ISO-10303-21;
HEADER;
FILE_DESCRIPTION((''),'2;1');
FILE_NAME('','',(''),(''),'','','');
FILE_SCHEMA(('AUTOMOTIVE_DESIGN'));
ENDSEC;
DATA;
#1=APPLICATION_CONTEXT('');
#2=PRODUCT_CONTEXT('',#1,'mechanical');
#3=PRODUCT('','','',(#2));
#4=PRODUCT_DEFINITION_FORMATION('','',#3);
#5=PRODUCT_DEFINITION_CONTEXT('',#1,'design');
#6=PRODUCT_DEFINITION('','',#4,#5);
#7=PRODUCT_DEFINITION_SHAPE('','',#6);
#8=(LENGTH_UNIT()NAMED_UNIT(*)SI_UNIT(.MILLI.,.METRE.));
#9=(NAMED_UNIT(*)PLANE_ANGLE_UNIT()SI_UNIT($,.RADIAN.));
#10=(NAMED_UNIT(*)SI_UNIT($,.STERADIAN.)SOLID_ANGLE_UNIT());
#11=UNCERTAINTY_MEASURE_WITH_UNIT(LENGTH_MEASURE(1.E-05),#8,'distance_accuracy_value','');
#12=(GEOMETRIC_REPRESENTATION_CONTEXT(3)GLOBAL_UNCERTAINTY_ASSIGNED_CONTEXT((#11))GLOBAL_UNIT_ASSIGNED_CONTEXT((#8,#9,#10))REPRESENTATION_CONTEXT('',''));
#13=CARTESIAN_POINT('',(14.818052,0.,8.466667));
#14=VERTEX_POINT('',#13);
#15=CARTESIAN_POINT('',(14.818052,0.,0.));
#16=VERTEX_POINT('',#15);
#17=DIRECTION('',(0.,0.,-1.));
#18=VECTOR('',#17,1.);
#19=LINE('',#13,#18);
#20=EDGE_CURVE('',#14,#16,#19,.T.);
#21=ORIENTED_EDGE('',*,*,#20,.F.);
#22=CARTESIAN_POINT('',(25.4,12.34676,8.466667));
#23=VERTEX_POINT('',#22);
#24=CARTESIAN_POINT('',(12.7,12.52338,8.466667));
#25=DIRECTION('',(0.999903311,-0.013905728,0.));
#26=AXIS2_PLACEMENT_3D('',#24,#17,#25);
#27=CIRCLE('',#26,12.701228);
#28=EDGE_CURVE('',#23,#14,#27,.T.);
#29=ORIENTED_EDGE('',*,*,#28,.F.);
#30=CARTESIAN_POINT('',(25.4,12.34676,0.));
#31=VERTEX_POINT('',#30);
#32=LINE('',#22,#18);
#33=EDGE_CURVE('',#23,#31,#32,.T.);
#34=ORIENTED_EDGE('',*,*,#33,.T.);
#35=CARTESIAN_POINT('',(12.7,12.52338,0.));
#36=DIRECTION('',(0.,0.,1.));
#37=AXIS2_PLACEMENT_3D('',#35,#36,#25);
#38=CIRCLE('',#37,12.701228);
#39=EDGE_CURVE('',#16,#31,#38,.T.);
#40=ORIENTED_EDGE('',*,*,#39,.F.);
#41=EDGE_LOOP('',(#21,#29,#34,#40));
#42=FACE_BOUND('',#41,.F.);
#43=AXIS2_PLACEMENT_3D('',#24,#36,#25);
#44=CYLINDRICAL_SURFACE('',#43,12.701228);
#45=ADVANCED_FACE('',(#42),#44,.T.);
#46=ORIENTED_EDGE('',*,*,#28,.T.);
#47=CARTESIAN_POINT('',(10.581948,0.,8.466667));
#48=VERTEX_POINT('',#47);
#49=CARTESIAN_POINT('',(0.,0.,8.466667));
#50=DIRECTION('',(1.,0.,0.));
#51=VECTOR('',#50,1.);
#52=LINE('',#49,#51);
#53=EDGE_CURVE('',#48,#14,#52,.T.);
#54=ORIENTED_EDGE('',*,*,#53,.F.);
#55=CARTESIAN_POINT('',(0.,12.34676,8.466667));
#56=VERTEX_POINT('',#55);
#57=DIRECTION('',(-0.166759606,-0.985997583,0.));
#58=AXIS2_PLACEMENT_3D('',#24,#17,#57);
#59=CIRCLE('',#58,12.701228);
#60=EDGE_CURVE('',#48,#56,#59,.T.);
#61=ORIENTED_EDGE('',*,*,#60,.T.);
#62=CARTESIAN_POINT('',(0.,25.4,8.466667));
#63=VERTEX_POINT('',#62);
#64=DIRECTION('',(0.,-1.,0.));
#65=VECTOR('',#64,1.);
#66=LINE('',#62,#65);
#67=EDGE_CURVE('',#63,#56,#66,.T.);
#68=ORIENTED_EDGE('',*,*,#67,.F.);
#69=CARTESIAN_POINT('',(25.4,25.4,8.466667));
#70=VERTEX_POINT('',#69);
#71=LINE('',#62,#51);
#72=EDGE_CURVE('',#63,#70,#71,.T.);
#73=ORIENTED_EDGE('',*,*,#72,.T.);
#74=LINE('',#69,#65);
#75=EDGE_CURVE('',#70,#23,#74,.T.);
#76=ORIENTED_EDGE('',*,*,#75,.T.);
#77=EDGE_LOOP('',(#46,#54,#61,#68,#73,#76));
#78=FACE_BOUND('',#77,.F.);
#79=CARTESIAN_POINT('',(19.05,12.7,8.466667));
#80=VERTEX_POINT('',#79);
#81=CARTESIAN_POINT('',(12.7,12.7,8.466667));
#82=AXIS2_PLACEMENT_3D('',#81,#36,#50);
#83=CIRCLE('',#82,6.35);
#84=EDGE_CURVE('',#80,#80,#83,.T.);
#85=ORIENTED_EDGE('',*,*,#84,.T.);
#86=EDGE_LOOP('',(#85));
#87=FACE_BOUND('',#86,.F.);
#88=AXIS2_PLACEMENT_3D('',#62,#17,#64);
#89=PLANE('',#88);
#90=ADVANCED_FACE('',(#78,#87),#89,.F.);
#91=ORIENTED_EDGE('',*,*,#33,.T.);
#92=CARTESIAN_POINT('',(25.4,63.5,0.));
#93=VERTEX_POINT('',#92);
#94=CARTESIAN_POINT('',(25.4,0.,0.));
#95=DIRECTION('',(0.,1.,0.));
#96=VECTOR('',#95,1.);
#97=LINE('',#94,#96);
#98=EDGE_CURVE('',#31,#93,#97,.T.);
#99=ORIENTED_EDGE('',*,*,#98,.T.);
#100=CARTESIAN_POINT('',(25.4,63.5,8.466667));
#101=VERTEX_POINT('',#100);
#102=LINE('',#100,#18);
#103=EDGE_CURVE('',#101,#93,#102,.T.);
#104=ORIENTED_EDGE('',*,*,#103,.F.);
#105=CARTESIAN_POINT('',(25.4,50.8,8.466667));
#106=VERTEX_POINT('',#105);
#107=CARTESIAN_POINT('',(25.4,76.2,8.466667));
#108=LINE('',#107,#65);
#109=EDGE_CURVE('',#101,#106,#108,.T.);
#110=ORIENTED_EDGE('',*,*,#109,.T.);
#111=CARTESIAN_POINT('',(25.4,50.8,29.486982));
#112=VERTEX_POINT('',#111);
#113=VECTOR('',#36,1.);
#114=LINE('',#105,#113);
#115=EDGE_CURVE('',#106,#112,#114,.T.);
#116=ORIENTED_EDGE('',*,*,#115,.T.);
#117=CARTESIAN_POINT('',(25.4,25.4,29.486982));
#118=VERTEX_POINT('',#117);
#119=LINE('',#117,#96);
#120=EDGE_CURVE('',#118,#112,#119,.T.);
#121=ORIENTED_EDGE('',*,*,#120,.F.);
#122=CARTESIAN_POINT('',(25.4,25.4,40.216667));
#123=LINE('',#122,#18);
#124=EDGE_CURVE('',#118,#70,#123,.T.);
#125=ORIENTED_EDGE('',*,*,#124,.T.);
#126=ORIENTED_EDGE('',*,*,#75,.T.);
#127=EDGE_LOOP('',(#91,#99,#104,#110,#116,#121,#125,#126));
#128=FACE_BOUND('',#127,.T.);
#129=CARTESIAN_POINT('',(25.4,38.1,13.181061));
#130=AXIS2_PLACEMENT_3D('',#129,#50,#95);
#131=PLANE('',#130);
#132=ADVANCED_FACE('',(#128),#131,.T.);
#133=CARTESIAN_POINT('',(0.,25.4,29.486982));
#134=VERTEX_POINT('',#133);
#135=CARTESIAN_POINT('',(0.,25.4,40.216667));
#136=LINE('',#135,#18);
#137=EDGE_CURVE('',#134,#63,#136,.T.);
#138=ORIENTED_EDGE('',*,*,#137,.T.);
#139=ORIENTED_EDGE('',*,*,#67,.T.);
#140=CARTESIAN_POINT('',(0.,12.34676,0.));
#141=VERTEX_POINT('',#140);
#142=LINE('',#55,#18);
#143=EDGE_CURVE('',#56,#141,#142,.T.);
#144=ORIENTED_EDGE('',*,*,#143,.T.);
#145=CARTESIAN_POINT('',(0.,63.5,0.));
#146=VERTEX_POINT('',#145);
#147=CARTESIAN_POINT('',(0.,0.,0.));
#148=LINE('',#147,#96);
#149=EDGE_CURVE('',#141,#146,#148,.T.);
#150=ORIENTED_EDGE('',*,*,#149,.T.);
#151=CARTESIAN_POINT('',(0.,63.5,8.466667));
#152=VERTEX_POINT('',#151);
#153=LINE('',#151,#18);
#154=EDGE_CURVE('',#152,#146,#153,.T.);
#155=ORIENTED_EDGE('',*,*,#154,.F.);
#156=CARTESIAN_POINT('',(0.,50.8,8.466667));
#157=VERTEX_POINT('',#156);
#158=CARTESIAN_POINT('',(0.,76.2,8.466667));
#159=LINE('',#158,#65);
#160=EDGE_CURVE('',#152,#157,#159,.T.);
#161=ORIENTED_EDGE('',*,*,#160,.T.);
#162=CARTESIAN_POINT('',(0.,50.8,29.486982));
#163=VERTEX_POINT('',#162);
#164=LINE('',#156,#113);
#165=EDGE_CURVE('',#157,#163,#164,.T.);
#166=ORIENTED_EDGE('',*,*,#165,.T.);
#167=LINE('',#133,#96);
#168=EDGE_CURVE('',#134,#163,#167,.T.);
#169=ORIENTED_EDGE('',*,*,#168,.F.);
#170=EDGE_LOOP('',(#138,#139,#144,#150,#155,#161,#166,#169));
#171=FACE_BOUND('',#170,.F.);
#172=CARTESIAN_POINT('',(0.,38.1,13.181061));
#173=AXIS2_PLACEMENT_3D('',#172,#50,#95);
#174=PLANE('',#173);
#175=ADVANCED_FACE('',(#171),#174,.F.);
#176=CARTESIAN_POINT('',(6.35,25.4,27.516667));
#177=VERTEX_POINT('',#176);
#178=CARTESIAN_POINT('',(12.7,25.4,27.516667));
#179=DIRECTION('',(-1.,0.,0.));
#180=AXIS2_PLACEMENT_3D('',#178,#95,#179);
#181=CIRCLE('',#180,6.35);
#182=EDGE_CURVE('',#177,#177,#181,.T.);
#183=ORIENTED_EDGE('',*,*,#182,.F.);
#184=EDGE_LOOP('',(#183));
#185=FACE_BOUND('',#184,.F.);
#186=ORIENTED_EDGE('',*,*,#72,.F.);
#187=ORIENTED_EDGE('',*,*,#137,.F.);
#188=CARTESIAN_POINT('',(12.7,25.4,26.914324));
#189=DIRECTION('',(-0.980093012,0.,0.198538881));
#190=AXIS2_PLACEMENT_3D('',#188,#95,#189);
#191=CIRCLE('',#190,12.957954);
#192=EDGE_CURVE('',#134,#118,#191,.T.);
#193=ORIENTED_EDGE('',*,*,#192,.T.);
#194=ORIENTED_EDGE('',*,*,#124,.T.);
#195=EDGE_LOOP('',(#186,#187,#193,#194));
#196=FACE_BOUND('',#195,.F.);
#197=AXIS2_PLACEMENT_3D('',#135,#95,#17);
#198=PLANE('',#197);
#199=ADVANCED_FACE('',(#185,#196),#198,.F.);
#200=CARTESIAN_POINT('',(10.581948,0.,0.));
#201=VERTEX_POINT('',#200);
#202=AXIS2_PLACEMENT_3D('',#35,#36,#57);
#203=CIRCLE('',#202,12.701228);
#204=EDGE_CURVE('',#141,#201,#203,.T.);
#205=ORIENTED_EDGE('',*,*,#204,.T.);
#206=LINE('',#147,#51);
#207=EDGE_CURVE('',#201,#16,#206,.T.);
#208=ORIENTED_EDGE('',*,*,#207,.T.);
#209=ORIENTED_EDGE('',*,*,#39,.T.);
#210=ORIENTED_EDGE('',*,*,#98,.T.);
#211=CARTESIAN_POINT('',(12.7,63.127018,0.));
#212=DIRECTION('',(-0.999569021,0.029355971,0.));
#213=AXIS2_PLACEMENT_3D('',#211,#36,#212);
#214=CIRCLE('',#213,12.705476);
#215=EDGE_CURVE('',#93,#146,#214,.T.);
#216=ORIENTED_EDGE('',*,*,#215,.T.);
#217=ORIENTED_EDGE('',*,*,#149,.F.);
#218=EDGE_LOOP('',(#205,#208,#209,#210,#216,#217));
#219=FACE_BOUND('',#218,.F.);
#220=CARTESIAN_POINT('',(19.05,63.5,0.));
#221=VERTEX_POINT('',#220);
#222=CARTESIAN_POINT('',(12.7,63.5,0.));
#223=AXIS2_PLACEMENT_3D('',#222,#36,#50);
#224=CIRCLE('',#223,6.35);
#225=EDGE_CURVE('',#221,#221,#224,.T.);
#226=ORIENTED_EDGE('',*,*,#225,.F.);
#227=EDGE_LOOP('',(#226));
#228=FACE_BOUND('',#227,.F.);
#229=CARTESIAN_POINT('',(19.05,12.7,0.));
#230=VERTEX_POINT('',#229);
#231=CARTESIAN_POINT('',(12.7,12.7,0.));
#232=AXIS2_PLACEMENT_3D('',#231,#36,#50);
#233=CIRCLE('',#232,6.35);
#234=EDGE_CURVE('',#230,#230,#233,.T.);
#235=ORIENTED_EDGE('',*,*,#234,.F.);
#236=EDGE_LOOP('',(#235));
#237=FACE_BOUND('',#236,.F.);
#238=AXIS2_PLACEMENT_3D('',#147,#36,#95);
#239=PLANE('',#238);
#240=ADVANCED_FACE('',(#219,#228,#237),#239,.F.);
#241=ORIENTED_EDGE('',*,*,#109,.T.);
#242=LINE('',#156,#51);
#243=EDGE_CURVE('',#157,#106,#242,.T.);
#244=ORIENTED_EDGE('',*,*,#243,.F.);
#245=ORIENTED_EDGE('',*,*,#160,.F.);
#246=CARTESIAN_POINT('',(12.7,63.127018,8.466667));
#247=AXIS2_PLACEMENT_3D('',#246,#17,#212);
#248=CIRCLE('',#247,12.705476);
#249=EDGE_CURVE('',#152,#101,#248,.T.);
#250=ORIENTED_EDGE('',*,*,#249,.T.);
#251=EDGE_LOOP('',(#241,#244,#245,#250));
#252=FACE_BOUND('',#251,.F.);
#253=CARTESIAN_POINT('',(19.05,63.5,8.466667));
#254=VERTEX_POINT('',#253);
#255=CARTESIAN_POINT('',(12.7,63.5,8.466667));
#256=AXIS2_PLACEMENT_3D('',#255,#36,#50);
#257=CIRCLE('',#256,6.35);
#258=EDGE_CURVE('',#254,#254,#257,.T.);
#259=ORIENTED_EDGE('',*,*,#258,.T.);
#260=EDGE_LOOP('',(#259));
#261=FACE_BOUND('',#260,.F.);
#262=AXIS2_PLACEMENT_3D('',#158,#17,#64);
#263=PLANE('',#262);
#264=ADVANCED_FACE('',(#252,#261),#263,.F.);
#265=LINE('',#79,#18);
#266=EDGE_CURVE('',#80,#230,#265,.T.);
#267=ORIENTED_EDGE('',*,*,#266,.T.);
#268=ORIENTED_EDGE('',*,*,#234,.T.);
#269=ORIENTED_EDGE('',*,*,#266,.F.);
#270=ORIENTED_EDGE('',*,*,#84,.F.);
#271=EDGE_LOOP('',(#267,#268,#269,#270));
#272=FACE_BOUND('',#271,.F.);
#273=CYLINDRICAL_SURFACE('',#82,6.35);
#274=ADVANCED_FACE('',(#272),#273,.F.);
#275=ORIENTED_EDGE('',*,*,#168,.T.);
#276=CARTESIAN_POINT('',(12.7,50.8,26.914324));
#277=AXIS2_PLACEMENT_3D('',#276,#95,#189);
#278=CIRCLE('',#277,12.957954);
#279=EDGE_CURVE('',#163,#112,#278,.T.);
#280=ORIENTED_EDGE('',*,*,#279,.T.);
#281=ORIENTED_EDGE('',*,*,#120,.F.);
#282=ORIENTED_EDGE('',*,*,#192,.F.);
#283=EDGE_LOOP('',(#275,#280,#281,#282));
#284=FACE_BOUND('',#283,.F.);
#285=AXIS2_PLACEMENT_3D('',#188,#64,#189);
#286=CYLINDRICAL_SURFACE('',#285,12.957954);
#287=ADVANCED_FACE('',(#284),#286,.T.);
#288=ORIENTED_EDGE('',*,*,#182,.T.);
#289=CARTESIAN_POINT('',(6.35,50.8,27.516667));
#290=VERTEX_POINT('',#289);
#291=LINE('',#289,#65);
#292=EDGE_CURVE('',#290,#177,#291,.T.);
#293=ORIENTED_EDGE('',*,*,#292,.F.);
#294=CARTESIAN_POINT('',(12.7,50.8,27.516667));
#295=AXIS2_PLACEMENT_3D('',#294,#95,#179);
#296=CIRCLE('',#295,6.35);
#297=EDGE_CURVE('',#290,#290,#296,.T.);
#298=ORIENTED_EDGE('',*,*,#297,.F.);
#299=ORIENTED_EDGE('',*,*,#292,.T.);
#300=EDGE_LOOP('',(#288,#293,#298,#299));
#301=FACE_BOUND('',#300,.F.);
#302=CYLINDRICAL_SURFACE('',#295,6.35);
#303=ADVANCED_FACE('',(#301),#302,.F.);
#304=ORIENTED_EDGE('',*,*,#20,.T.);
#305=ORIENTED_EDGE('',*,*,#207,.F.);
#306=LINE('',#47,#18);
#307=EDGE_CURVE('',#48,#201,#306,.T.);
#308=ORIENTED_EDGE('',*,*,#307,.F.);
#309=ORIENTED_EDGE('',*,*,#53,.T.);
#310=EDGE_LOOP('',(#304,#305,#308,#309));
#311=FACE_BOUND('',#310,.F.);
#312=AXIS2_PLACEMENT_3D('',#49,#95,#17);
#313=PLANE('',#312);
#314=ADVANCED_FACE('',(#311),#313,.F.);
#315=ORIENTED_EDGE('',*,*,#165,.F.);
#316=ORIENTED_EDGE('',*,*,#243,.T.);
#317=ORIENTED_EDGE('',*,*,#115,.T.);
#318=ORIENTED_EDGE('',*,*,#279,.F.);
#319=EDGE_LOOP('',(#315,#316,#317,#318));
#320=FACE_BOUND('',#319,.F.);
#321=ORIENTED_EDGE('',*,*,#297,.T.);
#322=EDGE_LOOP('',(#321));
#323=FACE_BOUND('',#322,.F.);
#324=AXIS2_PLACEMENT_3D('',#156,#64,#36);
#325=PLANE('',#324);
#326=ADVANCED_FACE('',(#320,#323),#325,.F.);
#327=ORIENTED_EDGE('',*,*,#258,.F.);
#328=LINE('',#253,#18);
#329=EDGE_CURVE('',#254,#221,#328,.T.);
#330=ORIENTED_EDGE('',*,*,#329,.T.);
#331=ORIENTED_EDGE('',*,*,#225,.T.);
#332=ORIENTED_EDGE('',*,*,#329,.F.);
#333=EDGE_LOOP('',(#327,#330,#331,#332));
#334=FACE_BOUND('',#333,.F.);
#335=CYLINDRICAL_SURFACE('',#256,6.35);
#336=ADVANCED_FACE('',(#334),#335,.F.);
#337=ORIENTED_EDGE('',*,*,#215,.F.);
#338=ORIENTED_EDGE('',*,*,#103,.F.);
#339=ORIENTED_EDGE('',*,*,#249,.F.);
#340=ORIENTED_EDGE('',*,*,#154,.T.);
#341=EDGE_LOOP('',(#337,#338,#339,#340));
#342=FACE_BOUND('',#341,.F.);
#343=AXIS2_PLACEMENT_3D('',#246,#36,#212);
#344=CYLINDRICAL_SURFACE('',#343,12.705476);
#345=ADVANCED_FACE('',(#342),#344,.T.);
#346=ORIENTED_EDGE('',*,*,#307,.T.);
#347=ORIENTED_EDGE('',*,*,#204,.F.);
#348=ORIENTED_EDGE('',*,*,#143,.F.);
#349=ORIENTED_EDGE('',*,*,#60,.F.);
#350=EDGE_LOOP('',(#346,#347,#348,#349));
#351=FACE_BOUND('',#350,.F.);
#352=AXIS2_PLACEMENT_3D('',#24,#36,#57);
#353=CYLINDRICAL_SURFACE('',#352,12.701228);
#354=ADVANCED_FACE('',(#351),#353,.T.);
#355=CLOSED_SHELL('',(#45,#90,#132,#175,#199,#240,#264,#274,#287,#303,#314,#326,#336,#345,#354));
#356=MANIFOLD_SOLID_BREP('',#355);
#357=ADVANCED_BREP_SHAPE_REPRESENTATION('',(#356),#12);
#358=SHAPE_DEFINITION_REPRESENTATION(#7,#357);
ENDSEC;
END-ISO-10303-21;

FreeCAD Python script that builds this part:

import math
import FreeCAD as App
import Part
import Sketcher
from FreeCAD import Vector
Q = App.Units.Quantity


def add_polygon(sketch, points):
    """Adds a closed chain of lines whose ends are joined by coincident constraints."""
    first, n = sketch.GeometryCount, len(points)
    for a, b in zip(points, points[1:] + points[:1]):
        sketch.addGeometry(Part.LineSegment(App.Vector(*a, 0), App.Vector(*b, 0)), False)
    for i in range(n):
        sketch.addConstraint(Sketcher.Constraint("Coincident", first + i, 2, first + (i + 1) % n, 1))

doc = App.newDocument("Part")
body = doc.addObject("PartDesign::Body", "Body")

# Sketch on YZ plane
sketch1 = body.newObject("Sketcher::SketchObject", "Sketch")
sketch1.AttachmentSupport = (doc.getObject("YZ_Plane"), [""])
sketch1.MapMode = "FlatFace"
add_polygon(sketch1, [(0, 8), (0, 0), (76, 0), (76, 8), (51, 8), (51, 40), (25, 40), (25, 8)])  # lines 0-7
sketch1.addConstraint(Sketcher.Constraint("Vertical", 0))
sketch1.addConstraint(Sketcher.Constraint("Horizontal", 1))
sketch1.addConstraint(Sketcher.Constraint("Vertical", 2))
sketch1.addConstraint(Sketcher.Constraint("Horizontal", 3))
sketch1.addConstraint(Sketcher.Constraint("Vertical", 4))
sketch1.addConstraint(Sketcher.Constraint("Horizontal", 5))
sketch1.addConstraint(Sketcher.Constraint("Vertical", 6))
sketch1.addConstraint(Sketcher.Constraint("Horizontal", 7))
sketch1.addConstraint(Sketcher.Constraint("Coincident", 0, 2, -1, 1))
sketch1.addConstraint(Sketcher.Constraint("Horizontal", 3, 2, 6, 2))
sketch1.addConstraint(Sketcher.Constraint("Equal", 3, 5))
sketch1.addConstraint(Sketcher.Constraint("Equal", 5, 7))
sketch1.addConstraint(Sketcher.Constraint("DistanceX", 1, 1, 1, 2, Q("3 in")))
sketch1.addConstraint(Sketcher.Constraint("DistanceY", 4, 1, 4, 2, Q("1.25 in")))
sketch1.addConstraint(Sketcher.Constraint("DistanceY", 0, 2, 0, 1, 8.466667))
pad1 = body.newObject("PartDesign::Pad", "Pad")
pad1.Profile = sketch1
pad1.Length = Q("1 in")

# Sketch on XZ plane
sketch2 = body.newObject("Sketcher::SketchObject", "Sketch001")
sketch2.AttachmentSupport = (doc.getObject("XZ_Plane"), [""])
sketch2.MapMode = "FlatFace"
sketch2.AttachmentOffset = App.Placement(Vector(0, 0, -2 * 25.4), App.Rotation())
sketch2.addGeometry(Part.Circle(Vector(13, 28, 0), Vector(0, 0, 1), 6), False)
sketch2.addConstraint(Sketcher.Constraint("Diameter", 0, Q("0.5 in")))
sketch2.addConstraint(Sketcher.Constraint("DistanceX", -1, 1, 0, 3, Q("0.5 in")))
sketch2.addConstraint(Sketcher.Constraint("DistanceY", -1, 1, 0, 3, 27.516667))
pocket1 = body.newObject("PartDesign::Pocket", "Pocket")
pocket1.Profile = sketch2
pocket1.Length = Q("1 in")
pocket1.Reversed = True

# Sketch on XY plane
sketch3 = body.newObject("Sketcher::SketchObject", "Sketch002")
sketch3.AttachmentSupport = (doc.getObject("XY_Plane"), [""])
sketch3.MapMode = "FlatFace"
sketch3.AttachmentOffset = App.Placement(Vector(0, 0, 8.466667), App.Rotation())
sketch3.addGeometry(Part.Circle(Vector(13, 64, 0), Vector(0, 0, 1), 6), False)
sketch3.addGeometry(Part.Circle(Vector(13, 13, 0), Vector(0, 0, 1), 6), False)
sketch3.addConstraint(Sketcher.Constraint("Equal", 0, 1))
sketch3.addConstraint(Sketcher.Constraint("Vertical", 0, 3, 1, 3))
sketch3.addConstraint(Sketcher.Constraint("Diameter", 0, Q("0.5 in")))
sketch3.addConstraint(Sketcher.Constraint("DistanceY", 1, 3, 0, 3, Q("2 in")))
sketch3.addConstraint(Sketcher.Constraint("DistanceX", -1, 1, 0, 3, Q("0.5 in")))
sketch3.addConstraint(Sketcher.Constraint("DistanceY", -1, 1, 0, 3, Q("2.5 in")))
pocket2 = body.newObject("PartDesign::Pocket", "Pocket001")
pocket2.Profile = sketch3
pocket2.Length = Q("1 in")

# Sketch on XY plane
sketch4 = body.newObject("Sketcher::SketchObject", "Sketch003")
sketch4.AttachmentSupport = (doc.getObject("XY_Plane"), [""])
sketch4.MapMode = "FlatFace"
sketch4.AttachmentOffset = App.Placement(Vector(0, 0, 8.466667), App.Rotation())
sketch4.addGeometry(Part.ArcOfCircle(Part.Circle(Vector(13, 63, 0), Vector(0, 0, 1), 13), math.radians(2), math.radians(178)), False)
sketch4.addGeometry(Part.LineSegment(Vector(25, 64, 0), Vector(25, 76, 0)), False)
sketch4.addGeometry(Part.LineSegment(Vector(25, 76, 0), Vector(0, 76, 0)), False)
sketch4.addGeometry(Part.LineSegment(Vector(0, 76, 0), Vector(0, 64, 0)), False)
sketch4.addConstraint(Sketcher.Constraint("Coincident", 0, 1, 1, 1))
sketch4.addConstraint(Sketcher.Constraint("Coincident", 1, 2, 2, 1))
sketch4.addConstraint(Sketcher.Constraint("Coincident", 2, 2, 3, 1))
sketch4.addConstraint(Sketcher.Constraint("Coincident", 3, 2, 0, 2))
sketch4.addConstraint(Sketcher.Constraint("Vertical", 1))
sketch4.addConstraint(Sketcher.Constraint("Horizontal", 2))
sketch4.addConstraint(Sketcher.Constraint("Vertical", 3))
sketch4.addConstraint(Sketcher.Constraint("PointOnObject", 2, 2, -2))
sketch4.addConstraint(Sketcher.Constraint("Horizontal", 0, 1, 3, 2))
sketch4.addConstraint(Sketcher.Constraint("DistanceX", 2, 2, 2, 1, Q("1 in")))
sketch4.addConstraint(Sketcher.Constraint("DistanceY", 1, 1, 1, 2, Q("0.5 in")))
sketch4.addConstraint(Sketcher.Constraint("DistanceY", -1, 1, 1, 2, Q("3 in")))
sketch4.addConstraint(Sketcher.Constraint("Radius", 0, 12.705476))
pocket3 = body.newObject("PartDesign::Pocket", "Pocket002")
pocket3.Profile = sketch4
pocket3.Length = Q("1 in")

# Sketch on XY plane
sketch5 = body.newObject("Sketcher::SketchObject", "Sketch004")
sketch5.AttachmentSupport = (doc.getObject("XY_Plane"), [""])
sketch5.MapMode = "FlatFace"
sketch5.AttachmentOffset = App.Placement(Vector(0, 0, 8.466667), App.Rotation())
sketch5.addGeometry(Part.ArcOfCircle(Part.Circle(Vector(12.7, 12.52338, 0), Vector(0, 0, 1), 12.701228), math.radians(-179.203235), math.radians(-99.599469)), False)
sketch5.addGeometry(Part.LineSegment(Vector(0, 12.34676, 0), Vector(0, 0, 0)), False)
sketch5.addGeometry(Part.LineSegment(Vector(0, 0, 0), Vector(10.581948, 0, 0)), False)
sketch5.addGeometry(Part.ArcOfCircle(Part.Circle(Vector(12.7, 12.52338, 0), Vector(0, 0, 1), 12.701228), math.radians(-80.400531), math.radians(-0.796765)), False)
sketch5.addGeometry(Part.LineSegment(Vector(14.818052, 0, 0), Vector(25.4, 0, 0)), False)
sketch5.addGeometry(Part.LineSegment(Vector(25.4, 0, 0), Vector(25.4, 12.34676, 0)), False)
sketch5.addConstraint(Sketcher.Constraint("Coincident", 0, 1, 1, 1))
sketch5.addConstraint(Sketcher.Constraint("Coincident", 1, 2, 2, 1))
sketch5.addConstraint(Sketcher.Constraint("Coincident", 2, 2, 0, 2))
sketch5.addConstraint(Sketcher.Constraint("Coincident", 3, 1, 4, 1))
sketch5.addConstraint(Sketcher.Constraint("Coincident", 4, 2, 5, 1))
sketch5.addConstraint(Sketcher.Constraint("Coincident", 5, 2, 3, 2))
sketch5.addConstraint(Sketcher.Constraint("Vertical", 1))
sketch5.addConstraint(Sketcher.Constraint("Horizontal", 2))
sketch5.addConstraint(Sketcher.Constraint("Horizontal", 4))
sketch5.addConstraint(Sketcher.Constraint("Vertical", 5))
sketch5.addConstraint(Sketcher.Constraint("Coincident", 1, 2, -1, 1))
sketch5.addConstraint(Sketcher.Constraint("Coincident", 3, 3, 0, 3))
sketch5.addConstraint(Sketcher.Constraint("Equal", 0, 3))
sketch5.addConstraint(Sketcher.Constraint("PointOnObject", 3, 1, -1))
sketch5.addConstraint(Sketcher.Constraint("Horizontal", 0, 1, 5, 2))
sketch5.addConstraint(Sketcher.Constraint("DistanceX", -1, 1, 4, 2, Q("1 in")))
sketch5.addConstraint(Sketcher.Constraint("Radius", 0, 12.701228))
sketch5.addConstraint(Sketcher.Constraint("DistanceX", 2, 1, 2, 2, 10.581948))
pocket4 = body.newObject("PartDesign::Pocket", "Pocket003")
pocket4.Profile = sketch5
pocket4.Length = Q("1 in")

# Sketch on XZ plane
sketch6 = body.newObject("Sketcher::SketchObject", "Sketch005")
sketch6.AttachmentSupport = (doc.getObject("XZ_Plane"), [""])
sketch6.MapMode = "FlatFace"
sketch6.AttachmentOffset = App.Placement(Vector(0, 0, -1 * 25.4), App.Rotation())
sketch6.addGeometry(Part.ArcOfCircle(Part.Circle(Vector(13, 27, 0), Vector(0, 0, 1), 13), math.radians(11), math.radians(169)), False)
sketch6.addGeometry(Part.LineSegment(Vector(25, 29, 0), Vector(25, 40, 0)), False)
sketch6.addGeometry(Part.LineSegment(Vector(25, 40, 0), Vector(0, 40, 0)), False)
sketch6.addGeometry(Part.LineSegment(Vector(0, 40, 0), Vector(0, 29, 0)), False)
sketch6.addConstraint(Sketcher.Constraint("Coincident", 0, 1, 1, 1))
sketch6.addConstraint(Sketcher.Constraint("Coincident", 1, 2, 2, 1))
sketch6.addConstraint(Sketcher.Constraint("Coincident", 2, 2, 3, 1))
sketch6.addConstraint(Sketcher.Constraint("Coincident", 3, 2, 0, 2))
sketch6.addConstraint(Sketcher.Constraint("Vertical", 1))
sketch6.addConstraint(Sketcher.Constraint("Horizontal", 2))
sketch6.addConstraint(Sketcher.Constraint("Vertical", 3))
sketch6.addConstraint(Sketcher.Constraint("PointOnObject", 2, 2, -2))
sketch6.addConstraint(Sketcher.Constraint("Horizontal", 0, 1, 3, 2))
sketch6.addConstraint(Sketcher.Constraint("DistanceX", 2, 2, 2, 1, Q("1 in")))
sketch6.addConstraint(Sketcher.Constraint("Radius", 0, 12.957954))
sketch6.addConstraint(Sketcher.Constraint("DistanceY", 1, 1, 1, 2, 10.729685))
sketch6.addConstraint(Sketcher.Constraint("DistanceY", -1, 1, 0, 1, 29.486982))
pocket5 = body.newObject("PartDesign::Pocket", "Pocket004")
pocket5.Profile = sketch6
pocket5.Length = Q("1 in")

doc.recompute()
